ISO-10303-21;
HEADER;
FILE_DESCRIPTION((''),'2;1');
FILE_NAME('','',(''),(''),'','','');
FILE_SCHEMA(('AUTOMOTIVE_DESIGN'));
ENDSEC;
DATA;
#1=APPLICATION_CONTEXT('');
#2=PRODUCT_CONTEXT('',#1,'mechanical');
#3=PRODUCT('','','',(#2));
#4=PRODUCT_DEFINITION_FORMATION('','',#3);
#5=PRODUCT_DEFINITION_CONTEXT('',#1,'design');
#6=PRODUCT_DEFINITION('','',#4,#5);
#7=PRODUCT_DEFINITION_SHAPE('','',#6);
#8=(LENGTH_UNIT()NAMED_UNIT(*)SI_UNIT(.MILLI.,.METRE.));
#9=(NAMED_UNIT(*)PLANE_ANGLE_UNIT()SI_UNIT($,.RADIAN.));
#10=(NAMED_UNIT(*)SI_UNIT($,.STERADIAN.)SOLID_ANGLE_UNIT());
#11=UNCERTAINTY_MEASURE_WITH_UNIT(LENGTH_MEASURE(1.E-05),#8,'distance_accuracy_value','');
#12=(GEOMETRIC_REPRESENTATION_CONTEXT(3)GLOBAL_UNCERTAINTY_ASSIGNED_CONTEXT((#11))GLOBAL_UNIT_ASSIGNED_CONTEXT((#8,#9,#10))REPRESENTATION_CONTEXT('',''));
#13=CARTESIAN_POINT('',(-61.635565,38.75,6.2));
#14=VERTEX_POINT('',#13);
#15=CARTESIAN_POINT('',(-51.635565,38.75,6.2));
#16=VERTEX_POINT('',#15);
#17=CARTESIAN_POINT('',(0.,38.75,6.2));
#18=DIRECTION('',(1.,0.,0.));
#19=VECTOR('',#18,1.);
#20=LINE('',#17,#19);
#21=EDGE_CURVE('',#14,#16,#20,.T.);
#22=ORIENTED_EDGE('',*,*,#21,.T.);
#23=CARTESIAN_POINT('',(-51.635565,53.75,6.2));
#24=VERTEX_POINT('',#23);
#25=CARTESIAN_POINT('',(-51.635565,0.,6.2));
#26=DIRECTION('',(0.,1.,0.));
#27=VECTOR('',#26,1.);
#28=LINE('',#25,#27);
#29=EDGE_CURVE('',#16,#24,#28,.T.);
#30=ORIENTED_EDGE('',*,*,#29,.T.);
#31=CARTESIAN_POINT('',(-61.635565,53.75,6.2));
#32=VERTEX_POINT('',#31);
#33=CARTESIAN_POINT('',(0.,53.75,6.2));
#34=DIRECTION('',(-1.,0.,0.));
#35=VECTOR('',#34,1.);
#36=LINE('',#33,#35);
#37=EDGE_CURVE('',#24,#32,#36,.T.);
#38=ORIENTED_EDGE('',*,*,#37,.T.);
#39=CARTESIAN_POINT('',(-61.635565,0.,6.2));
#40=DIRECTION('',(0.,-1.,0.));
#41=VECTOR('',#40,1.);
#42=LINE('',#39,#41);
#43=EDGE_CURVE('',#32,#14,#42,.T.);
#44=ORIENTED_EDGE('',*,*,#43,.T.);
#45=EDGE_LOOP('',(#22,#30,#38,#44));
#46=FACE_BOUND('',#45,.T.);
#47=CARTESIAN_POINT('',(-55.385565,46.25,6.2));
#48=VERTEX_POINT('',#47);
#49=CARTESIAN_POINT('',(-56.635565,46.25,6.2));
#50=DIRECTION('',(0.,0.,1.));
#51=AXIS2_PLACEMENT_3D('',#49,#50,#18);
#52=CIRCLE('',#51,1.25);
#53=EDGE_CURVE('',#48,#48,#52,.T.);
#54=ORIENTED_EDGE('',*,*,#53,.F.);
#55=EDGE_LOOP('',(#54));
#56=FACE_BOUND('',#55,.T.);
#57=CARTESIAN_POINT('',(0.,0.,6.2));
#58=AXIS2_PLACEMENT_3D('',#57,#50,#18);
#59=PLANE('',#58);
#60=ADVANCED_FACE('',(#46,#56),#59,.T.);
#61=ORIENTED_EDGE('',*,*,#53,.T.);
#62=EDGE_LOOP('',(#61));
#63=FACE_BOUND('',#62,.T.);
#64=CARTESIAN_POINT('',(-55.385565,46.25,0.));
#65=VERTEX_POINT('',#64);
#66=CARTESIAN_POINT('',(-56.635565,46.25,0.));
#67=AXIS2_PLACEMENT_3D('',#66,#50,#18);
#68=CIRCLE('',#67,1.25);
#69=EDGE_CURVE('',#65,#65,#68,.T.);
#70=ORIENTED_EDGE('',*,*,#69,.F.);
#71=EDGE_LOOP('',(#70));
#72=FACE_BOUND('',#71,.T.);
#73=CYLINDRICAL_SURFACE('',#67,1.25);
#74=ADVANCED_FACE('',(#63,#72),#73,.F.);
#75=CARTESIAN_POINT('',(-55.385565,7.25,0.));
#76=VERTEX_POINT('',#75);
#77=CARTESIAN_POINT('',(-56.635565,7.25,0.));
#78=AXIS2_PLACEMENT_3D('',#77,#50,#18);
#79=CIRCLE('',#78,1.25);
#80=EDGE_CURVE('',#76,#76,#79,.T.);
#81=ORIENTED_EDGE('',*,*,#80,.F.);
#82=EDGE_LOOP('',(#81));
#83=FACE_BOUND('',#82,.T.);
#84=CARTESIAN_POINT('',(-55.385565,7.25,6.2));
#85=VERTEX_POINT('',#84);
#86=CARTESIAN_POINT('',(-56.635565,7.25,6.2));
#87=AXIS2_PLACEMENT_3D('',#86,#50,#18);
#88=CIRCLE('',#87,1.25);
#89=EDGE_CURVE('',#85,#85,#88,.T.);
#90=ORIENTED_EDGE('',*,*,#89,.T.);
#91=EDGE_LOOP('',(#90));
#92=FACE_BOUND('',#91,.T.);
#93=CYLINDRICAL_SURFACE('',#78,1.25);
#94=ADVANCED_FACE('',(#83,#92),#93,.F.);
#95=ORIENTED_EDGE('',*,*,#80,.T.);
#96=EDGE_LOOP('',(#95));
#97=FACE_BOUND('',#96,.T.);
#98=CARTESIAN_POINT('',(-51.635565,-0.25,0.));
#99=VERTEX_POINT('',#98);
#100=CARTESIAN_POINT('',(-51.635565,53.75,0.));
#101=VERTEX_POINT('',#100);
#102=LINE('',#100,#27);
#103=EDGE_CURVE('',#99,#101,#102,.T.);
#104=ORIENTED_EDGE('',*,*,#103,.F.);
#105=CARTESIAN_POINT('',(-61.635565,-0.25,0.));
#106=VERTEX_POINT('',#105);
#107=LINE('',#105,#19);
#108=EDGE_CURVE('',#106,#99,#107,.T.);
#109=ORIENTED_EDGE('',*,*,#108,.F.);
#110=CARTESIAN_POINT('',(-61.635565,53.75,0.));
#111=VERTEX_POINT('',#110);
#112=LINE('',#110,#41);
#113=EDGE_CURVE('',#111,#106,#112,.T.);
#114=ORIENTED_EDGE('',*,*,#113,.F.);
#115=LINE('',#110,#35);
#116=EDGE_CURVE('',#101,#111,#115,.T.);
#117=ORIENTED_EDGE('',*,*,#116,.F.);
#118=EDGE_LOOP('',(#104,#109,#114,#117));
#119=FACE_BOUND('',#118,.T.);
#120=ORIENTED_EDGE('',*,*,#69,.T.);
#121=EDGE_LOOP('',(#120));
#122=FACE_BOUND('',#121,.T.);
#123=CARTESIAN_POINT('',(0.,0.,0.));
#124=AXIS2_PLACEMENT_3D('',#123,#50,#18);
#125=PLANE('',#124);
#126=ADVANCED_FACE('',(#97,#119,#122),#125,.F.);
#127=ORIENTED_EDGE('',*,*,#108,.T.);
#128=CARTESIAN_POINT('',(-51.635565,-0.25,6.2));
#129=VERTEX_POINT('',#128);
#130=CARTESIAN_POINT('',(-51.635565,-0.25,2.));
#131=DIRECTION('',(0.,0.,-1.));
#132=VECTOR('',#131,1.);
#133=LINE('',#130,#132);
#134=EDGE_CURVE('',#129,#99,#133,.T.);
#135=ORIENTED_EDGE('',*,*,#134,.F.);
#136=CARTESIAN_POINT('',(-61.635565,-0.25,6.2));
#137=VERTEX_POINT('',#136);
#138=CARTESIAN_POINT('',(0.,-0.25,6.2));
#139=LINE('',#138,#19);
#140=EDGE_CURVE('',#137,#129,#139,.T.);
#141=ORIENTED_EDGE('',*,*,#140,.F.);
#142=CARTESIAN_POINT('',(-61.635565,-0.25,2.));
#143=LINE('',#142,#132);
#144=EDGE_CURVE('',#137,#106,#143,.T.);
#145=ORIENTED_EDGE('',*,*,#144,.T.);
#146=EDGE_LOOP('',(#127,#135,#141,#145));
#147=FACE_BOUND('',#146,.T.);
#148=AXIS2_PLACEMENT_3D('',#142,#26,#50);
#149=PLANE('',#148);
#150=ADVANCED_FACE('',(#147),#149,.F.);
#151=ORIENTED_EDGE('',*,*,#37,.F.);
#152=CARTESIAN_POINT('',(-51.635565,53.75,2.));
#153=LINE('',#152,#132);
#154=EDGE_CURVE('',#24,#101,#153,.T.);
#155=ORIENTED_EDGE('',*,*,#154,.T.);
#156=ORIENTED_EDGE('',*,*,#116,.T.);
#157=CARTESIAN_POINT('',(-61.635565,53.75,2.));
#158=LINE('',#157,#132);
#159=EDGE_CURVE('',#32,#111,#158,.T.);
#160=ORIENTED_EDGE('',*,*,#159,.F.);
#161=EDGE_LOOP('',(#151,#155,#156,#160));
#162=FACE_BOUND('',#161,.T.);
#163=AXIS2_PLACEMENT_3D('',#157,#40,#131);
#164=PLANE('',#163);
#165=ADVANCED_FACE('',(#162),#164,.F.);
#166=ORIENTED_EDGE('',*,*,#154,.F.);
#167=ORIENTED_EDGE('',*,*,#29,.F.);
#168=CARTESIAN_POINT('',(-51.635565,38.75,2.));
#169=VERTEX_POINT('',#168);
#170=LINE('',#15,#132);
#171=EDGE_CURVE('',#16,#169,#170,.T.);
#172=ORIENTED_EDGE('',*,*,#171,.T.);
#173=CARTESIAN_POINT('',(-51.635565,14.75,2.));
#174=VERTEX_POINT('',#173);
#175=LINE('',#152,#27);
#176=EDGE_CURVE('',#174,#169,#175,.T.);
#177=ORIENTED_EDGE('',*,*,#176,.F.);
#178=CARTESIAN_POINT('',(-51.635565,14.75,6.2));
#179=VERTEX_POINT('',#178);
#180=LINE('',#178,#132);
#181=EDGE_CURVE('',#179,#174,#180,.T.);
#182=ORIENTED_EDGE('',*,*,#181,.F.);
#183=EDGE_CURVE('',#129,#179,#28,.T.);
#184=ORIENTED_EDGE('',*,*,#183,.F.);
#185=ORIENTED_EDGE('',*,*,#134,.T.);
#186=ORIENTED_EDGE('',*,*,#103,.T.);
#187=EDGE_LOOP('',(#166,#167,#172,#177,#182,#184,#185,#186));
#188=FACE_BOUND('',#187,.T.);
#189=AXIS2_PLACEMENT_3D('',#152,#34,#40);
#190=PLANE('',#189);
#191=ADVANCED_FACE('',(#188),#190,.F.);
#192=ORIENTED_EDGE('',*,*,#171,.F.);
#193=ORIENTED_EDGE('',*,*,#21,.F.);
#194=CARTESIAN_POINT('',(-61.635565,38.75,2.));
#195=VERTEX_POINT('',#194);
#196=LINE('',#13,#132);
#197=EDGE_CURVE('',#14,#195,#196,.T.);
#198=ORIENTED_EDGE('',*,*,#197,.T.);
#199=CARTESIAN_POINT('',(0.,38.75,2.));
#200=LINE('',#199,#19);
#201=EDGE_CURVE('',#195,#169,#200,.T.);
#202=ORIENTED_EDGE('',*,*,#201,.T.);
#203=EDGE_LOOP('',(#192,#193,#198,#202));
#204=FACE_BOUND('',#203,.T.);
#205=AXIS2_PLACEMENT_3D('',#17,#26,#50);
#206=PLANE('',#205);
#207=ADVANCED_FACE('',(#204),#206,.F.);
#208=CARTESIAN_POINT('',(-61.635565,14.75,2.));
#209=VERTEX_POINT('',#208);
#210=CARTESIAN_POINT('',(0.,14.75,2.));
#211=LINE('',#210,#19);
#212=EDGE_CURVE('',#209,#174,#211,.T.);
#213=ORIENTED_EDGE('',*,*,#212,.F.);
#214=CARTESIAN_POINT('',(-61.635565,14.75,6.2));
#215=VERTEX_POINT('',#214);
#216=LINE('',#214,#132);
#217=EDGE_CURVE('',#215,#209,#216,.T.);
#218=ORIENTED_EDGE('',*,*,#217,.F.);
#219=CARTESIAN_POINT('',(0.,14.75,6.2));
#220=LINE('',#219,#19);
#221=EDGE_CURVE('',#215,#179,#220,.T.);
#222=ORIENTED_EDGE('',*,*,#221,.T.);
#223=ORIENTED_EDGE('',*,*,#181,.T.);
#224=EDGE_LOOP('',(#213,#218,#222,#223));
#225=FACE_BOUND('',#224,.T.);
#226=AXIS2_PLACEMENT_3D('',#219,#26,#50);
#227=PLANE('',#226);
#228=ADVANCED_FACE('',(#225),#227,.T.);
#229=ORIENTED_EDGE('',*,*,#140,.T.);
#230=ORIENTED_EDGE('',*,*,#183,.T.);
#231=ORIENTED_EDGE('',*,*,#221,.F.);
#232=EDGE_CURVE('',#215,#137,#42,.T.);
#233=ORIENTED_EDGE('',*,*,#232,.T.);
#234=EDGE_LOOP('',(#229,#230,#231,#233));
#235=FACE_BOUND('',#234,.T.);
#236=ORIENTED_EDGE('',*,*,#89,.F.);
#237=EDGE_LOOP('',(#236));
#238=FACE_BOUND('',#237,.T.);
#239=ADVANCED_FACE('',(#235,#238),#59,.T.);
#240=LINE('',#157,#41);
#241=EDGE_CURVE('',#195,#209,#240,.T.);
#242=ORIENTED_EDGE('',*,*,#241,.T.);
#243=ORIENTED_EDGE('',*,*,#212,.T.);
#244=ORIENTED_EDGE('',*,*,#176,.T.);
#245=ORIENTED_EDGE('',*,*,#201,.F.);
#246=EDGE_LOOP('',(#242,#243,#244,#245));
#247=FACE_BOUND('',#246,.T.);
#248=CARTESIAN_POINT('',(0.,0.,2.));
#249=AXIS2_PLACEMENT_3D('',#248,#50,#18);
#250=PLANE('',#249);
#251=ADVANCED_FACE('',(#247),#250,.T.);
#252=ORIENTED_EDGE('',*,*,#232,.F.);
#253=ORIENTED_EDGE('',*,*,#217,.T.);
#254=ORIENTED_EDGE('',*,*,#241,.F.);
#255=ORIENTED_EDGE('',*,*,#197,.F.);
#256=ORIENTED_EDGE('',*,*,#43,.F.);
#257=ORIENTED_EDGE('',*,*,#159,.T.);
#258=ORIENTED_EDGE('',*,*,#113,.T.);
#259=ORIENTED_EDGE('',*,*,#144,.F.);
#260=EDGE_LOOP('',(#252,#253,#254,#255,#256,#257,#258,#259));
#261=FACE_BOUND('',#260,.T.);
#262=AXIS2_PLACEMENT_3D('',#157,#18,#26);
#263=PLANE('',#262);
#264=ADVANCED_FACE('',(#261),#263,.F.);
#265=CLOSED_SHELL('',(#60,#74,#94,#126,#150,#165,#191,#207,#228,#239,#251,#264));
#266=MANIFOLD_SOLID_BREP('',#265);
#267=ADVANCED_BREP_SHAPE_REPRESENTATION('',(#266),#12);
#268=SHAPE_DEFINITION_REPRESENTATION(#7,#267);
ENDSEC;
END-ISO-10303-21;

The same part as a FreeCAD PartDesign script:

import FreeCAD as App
import Part
import Sketcher

V = App.Vector
Q = App.Units.Quantity


def add_polygon(sketch, points):
    """Adds a closed chain of lines whose ends are joined by coincident constraints."""
    first, n = sketch.GeometryCount, len(points)
    for a, b in zip(points, points[1:] + points[:1]):
        sketch.addGeometry(Part.LineSegment(App.Vector(*a, 0), App.Vector(*b, 0)), False)
    for i in range(n):
        sketch.addConstraint(Sketcher.Constraint("Coincident", first + i, 2, first + (i + 1) % n, 1))

doc = App.newDocument("Part")
body = doc.addObject("PartDesign::Body", "Body")

sketch1 = body.newObject("Sketcher::SketchObject", "Sketch")
sketch1.AttachmentSupport = (doc.getObject("XY_Plane"), [""])
sketch1.MapMode = "FlatFace"
add_polygon(sketch1, [(-61.635565, 53.75), (-61.635565, -0.25), (-51.635565, -0.25), (-51.635565, 53.75)])
sketch1.addConstraint([
    Sketcher.Constraint("Vertical", 0),
    Sketcher.Constraint("Horizontal", 1),
    Sketcher.Constraint("Vertical", 2),
    Sketcher.Constraint("Horizontal", 3),
    Sketcher.Constraint("DistanceX", 1, 1, 1, 2, Q("10 mm")),
    Sketcher.Constraint("DistanceY", 0, 2, 0, 1, Q("54 mm")),
    Sketcher.Constraint("DistanceY", 0, 2, -1, 1, Q("0.25 mm")),
    Sketcher.Constraint("DistanceX", 0, 2, -1, 1, Q("61.635565 mm")),
])
pad1 = body.newObject("PartDesign::Pad", "Pad")
pad1.Profile = sketch1
pad1.Length = 2

sketch2 = body.newObject("Sketcher::SketchObject", "Sketch001")
sketch2.AttachmentSupport = (doc.getObject("XY_Plane"), [""])
sketch2.MapMode = "FlatFace"
sketch2.AttachmentOffset = App.Placement(V(0, 0, 2), App.Rotation())
add_polygon(sketch2, [(-61.635565, 14.75), (-61.635565, -0.25), (-51.635565, -0.25), (-51.635565, 14.75)])
add_polygon(sketch2, [(-61.635565, 53.75), (-61.635565, 38.75), (-51.635565, 38.75), (-51.635565, 53.75)])
sketch2.addConstraint([
    Sketcher.Constraint("Vertical", 0),
    Sketcher.Constraint("Horizontal", 1),
    Sketcher.Constraint("Vertical", 2),
    Sketcher.Constraint("Horizontal", 3),
    Sketcher.Constraint("Vertical", 4),
    Sketcher.Constraint("Horizontal", 5),
    Sketcher.Constraint("Vertical", 6),
    Sketcher.Constraint("Horizontal", 7),
    Sketcher.Constraint("Vertical", 3, 2, 4, 2),
    Sketcher.Constraint("Vertical", 2, 2, 5, 2),
    Sketcher.Constraint("Equal", 2, 4),
    Sketcher.Constraint("DistanceX", 1, 1, 1, 2, Q("10 mm")),
    Sketcher.Constraint("DistanceY", 0, 2, 0, 1, Q("15 mm")),
    Sketcher.Constraint("DistanceY", 3, 2, 4, 2, Q("24 mm")),
    Sketcher.Constraint("DistanceY", 0, 2, -1, 1, Q("0.25 mm")),
    Sketcher.Constraint("DistanceX", 0, 2, -1, 1, Q("61.635565 mm")),
])
pad2 = body.newObject("PartDesign::Pad", "Pad001")
pad2.Profile = sketch2
pad2.Length = 4.2

sketch3 = body.newObject("Sketcher::SketchObject", "Sketch002")
sketch3.AttachmentSupport = (doc.getObject("XY_Plane"), [""])
sketch3.MapMode = "FlatFace"
sketch3.AttachmentOffset = App.Placement(V(0, 0, 6.2), App.Rotation())
sketch3.addGeometry([
    Part.Circle(V(-56.635565, 7.25, 0), V(0, 0, 1), 1.25),
    Part.Circle(V(-56.635565, 46.25, 0), V(0, 0, 1), 1.25),
], False)
sketch3.addConstraint([
    Sketcher.Constraint("Equal", 0, 1),
    Sketcher.Constraint("Vertical", 0, 3, 1, 3),
    Sketcher.Constraint("Diameter", 0, Q("2.5 mm")),
    Sketcher.Constraint("DistanceY", 0, 3, 1, 3, Q("39 mm")),
    Sketcher.Constraint("DistanceY", -1, 1, 0, 3, Q("7.25 mm")),
    Sketcher.Constraint("DistanceX", 0, 3, -1, 1, Q("56.635565 mm")),
])
pocket1 = body.newObject("PartDesign::Pocket", "Pocket")
pocket1.Profile = sketch3
pocket1.Type = "ThroughAll"

doc.recompute()
